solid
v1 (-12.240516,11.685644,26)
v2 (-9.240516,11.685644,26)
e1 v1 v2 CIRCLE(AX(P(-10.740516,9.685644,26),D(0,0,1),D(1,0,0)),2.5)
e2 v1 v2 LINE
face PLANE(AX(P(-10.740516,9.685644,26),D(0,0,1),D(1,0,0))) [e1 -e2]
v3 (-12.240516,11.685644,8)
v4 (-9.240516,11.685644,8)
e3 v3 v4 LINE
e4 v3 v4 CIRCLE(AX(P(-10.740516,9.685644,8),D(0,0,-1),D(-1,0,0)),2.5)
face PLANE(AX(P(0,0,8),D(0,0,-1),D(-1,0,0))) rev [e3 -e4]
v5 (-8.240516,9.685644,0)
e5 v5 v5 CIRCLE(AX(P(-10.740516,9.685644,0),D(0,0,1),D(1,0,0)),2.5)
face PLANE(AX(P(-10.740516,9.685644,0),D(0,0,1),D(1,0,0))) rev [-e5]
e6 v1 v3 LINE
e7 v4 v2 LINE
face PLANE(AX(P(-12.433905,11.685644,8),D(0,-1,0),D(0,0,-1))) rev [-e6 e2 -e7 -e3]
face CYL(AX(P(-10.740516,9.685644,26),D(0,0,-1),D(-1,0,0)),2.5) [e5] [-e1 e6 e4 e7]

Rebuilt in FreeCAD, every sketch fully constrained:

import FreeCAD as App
import Part
import Sketcher
from FreeCAD import Vector

doc = App.newDocument("Part")
body = doc.addObject("PartDesign::Body", "Body")

# Sketch on XY plane
sketch1 = body.newObject("Sketcher::SketchObject", "Sketch")
sketch1.AttachmentSupport = (doc.getObject("XY_Plane"), [""])
sketch1.MapMode = "FlatFace"
sketch1.addGeometry(Part.Circle(Vector(-10.7, 9.7, 0), Vector(0, 0, 1), 2.5), False)
sketch1.addConstraint([
    Sketcher.Constraint("Diameter", 0, 5.0),
    Sketcher.Constraint("DistanceX", 0, 3, -1, 1, 10.740516),
    Sketcher.Constraint("DistanceY", -1, 1, 0, 3, 9.685644),
])
pad1 = body.newObject("PartDesign::Pad", "Pad")
pad1.Profile = sketch1
pad1.Length = 26

# Sketch on XY plane
sketch2 = body.newObject("Sketcher::SketchObject", "Sketch001")
sketch2.AttachmentSupport = (doc.getObject("XY_Plane"), [""])
sketch2.MapMode = "FlatFace"
sketch2.AttachmentOffset = App.Placement(Vector(0, 0, 26), App.Rotation())
sketch2.addGeometry([
    Part.LineSegment(Vector(-12.4, 12.2, 0), Vector(-12.4, 11.7, 0)),
    Part.LineSegment(Vector(-12.4, 11.7, 0), Vector(-9, 11.7, 0)),
    Part.LineSegment(Vector(-9, 11.7, 0), Vector(-9, 12.2, 0)),
    Part.LineSegment(Vector(-9, 12.2, 0), Vector(-12.4, 12.2, 0)),
], False)
sketch2.addConstraint([
    Sketcher.Constraint("Coincident", 0, 2, 1, 1),
    Sketcher.Constraint("Coincident", 1, 2, 2, 1),
    Sketcher.Constraint("Coincident", 2, 2, 3, 1),
    Sketcher.Constraint("Coincident", 3, 2, 0, 1),
    Sketcher.Constraint("Vertical", 0),
    Sketcher.Constraint("Horizontal", 1),
    Sketcher.Constraint("Vertical", 2),
    Sketcher.Constraint("Horizontal", 3),
    Sketcher.Constraint("DistanceX", 1, 1, 1, 2, 3.423589),
    Sketcher.Constraint("DistanceY", 0, 2, 0, 1, 0.513616),
    Sketcher.Constraint("DistanceY", -1, 1, 2, 2, 12.19926),
    Sketcher.Constraint("DistanceX", 0, 2, -1, 1, 12.433905),
])
pocket1 = body.newObject("PartDesign::Pocket", "Pocket")
pocket1.Profile = sketch2
pocket1.Length = 18

doc.recompute()
